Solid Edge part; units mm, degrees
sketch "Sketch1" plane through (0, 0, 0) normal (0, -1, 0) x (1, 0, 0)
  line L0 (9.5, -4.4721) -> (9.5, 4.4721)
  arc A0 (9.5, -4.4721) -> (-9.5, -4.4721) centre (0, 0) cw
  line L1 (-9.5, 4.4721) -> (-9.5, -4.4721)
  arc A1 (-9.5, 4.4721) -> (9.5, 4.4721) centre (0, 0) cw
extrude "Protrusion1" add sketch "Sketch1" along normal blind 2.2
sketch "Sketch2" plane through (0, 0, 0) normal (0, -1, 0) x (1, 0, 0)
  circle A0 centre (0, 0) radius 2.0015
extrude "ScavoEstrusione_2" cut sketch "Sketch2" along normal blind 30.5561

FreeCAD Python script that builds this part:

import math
import FreeCAD as App
import Part
import Sketcher
Q = App.Units.Quantity

doc = App.newDocument("Part")
body = doc.addObject("PartDesign::Body", "Body")

# Sketch on XZ plane
sketch1 = body.newObject("Sketcher::SketchObject", "Sketch")
sketch1.AttachmentSupport = (doc.getObject("XZ_Plane"), [""])
sketch1.MapMode = "FlatFace"
sketch1.addGeometry([
    Part.ArcOfCircle(Part.Circle(App.Vector(0, 0, 0), App.Vector(0, 0, 1), 10), math.radians(-155), math.radians(-25)),
    Part.LineSegment(App.Vector(10, -4, 0), App.Vector(10, 4, 0)),
    Part.ArcOfCircle(Part.Circle(App.Vector(0, 0, 0), App.Vector(0, 0, 1), 10), math.radians(25), math.radians(155)),
    Part.LineSegment(App.Vector(-10, 4, 0), App.Vector(-10, -4, 0)),
], False)
sketch1.addConstraint([
    Sketcher.Constraint("Coincident", 0, 2, 1, 1),
    Sketcher.Constraint("Coincident", 1, 2, 2, 1),
    Sketcher.Constraint("Coincident", 2, 2, 3, 1),
    Sketcher.Constraint("Coincident", 3, 2, 0, 1),
    Sketcher.Constraint("Vertical", 1),
    Sketcher.Constraint("Vertical", 3),
    Sketcher.Constraint("Coincident", 0, 3, -1, 1),
    Sketcher.Constraint("Coincident", 2, 3, -1, 1),
    Sketcher.Constraint("Equal", 0, 2),
    Sketcher.Constraint("Horizontal", 1, 2, 2, 2),
    Sketcher.Constraint("Radius", 0, Q("10.5 mm")),
    Sketcher.Constraint("DistanceX", 2, 2, 1, 2, Q("19 mm")),
])
pad1 = body.newObject("PartDesign::Pad", "Pad")
pad1.Profile = sketch1
pad1.Length = 2.2

# Sketch on XZ plane
sketch2 = body.newObject("Sketcher::SketchObject", "Sketch001")
sketch2.AttachmentSupport = (doc.getObject("XZ_Plane"), [""])
sketch2.MapMode = "FlatFace"
sketch2.addGeometry(Part.Circle(App.Vector(0, 0, 0), App.Vector(0, 0, 1), 2), False)
sketch2.addConstraint([
    Sketcher.Constraint("Coincident", 0, 3, -1, 1),
    Sketcher.Constraint("Diameter", 0, Q("4.003 mm")),
])
pocket1 = body.newObject("PartDesign::Pocket", "Pocket")
pocket1.Profile = sketch2
pocket1.Length = 30.5561
pocket1.Reversed = True

doc.recompute()
